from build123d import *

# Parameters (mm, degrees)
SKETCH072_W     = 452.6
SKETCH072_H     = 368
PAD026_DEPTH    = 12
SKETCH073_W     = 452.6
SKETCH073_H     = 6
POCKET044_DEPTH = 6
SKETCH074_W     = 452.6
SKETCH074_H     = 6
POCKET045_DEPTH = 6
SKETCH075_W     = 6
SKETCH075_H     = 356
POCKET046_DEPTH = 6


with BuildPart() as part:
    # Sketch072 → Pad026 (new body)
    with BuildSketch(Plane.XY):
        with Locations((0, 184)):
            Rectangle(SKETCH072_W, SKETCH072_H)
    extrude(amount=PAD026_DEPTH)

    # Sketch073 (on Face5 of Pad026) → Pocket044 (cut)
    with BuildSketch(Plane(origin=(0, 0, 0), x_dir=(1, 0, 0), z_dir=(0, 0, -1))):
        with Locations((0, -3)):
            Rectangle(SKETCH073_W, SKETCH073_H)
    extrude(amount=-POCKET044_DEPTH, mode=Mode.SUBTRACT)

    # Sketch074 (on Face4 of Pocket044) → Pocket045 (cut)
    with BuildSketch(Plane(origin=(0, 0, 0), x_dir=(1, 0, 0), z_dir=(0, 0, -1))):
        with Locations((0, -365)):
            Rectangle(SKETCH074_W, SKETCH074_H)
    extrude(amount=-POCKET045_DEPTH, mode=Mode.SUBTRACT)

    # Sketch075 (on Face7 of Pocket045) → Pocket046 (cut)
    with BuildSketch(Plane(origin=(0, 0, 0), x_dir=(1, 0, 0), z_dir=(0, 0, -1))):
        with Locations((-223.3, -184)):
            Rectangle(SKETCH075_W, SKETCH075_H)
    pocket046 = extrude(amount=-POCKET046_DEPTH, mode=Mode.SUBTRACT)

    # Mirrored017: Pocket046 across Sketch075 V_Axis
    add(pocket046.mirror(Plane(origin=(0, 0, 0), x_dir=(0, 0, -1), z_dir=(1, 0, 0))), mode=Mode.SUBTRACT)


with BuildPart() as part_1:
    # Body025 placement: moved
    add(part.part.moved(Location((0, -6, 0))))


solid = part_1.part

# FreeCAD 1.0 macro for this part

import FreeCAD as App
import Part
import Sketcher
Q = App.Units.Quantity

doc = App.newDocument("Part")
body = doc.addObject("PartDesign::Body", "Body")

# Sketch on XY plane
sketch1 = doc.addObject("Sketcher::SketchObject", "Sketch")
body.addObject(sketch1)
sketch1.AttachmentSupport = (doc.XY_Plane, [""])
sketch1.MapMode = "FlatFace"
sketch1.addGeometry([
    Part.LineSegment(App.Vector(-226, 368, 0), App.Vector(-226, 0, 0)),
    Part.LineSegment(App.Vector(-226, 0, 0), App.Vector(226, 0, 0)),
    Part.LineSegment(App.Vector(226, 0, 0), App.Vector(226, 368, 0)),
    Part.LineSegment(App.Vector(226, 368, 0), App.Vector(-226, 368, 0)),
], False)
sketch1.addConstraint([
    Sketcher.Constraint("Coincident", 0, 2, 1, 1),
    Sketcher.Constraint("Coincident", 1, 2, 2, 1),
    Sketcher.Constraint("Coincident", 2, 2, 3, 1),
    Sketcher.Constraint("Coincident", 3, 2, 0, 1),
    Sketcher.Constraint("Vertical", 0),
    Sketcher.Constraint("Horizontal", 1),
    Sketcher.Constraint("Vertical", 2),
    Sketcher.Constraint("Horizontal", 3),
    Sketcher.Constraint("Symmetric", 0, 2, 1, 2, -1, 1),
    Sketcher.Constraint("DistanceY", 0, 2, 0, 1, Q("368 mm")),
    Sketcher.Constraint("DistanceX", 1, 1, 1, 2, Q("452.6 mm")),
])
pad1 = doc.addObject("PartDesign::Pad", "Pad")
body.addObject(pad1)
pad1.Profile = sketch1
pad1.Length = 12

# Sketch on XY plane
sketch2 = doc.addObject("Sketcher::SketchObject", "Sketch001")
body.addObject(sketch2)
sketch2.AttachmentSupport = (doc.XY_Plane, [""])
sketch2.MapMode = "FlatFace"
sketch2.addGeometry([
    Part.LineSegment(App.Vector(-226, 0, 0), App.Vector(-226, 6, 0)),
    Part.LineSegment(App.Vector(-226, 6, 0), App.Vector(226, 6, 0)),
    Part.LineSegment(App.Vector(226, 6, 0), App.Vector(226, 0, 0)),
    Part.LineSegment(App.Vector(226, 0, 0), App.Vector(-226, 0, 0)),
], False)
sketch2.addConstraint([
    Sketcher.Constraint("Coincident", 0, 2, 1, 1),
    Sketcher.Constraint("Coincident", 1, 2, 2, 1),
    Sketcher.Constraint("Coincident", 2, 2, 3, 1),
    Sketcher.Constraint("Coincident", 3, 2, 0, 1),
    Sketcher.Constraint("Vertical", 0),
    Sketcher.Constraint("Horizontal", 1),
    Sketcher.Constraint("Vertical", 2),
    Sketcher.Constraint("Horizontal", 3),
    Sketcher.Constraint("Symmetric", 2, 2, 3, 2, -1, 1),
    Sketcher.Constraint("DistanceY", 0, 1, 0, 2, Q("6 mm")),
    Sketcher.Constraint("DistanceX", 1, 1, 1, 2, Q("452.6 mm")),
])
pocket1 = doc.addObject("PartDesign::Pocket", "Pocket")
body.addObject(pocket1)
pocket1.Profile = sketch2
pocket1.Length = 6
pocket1.Reversed = True

# Sketch on XY plane
sketch3 = doc.addObject("Sketcher::SketchObject", "Sketch002")
body.addObject(sketch3)
sketch3.AttachmentSupport = (doc.XY_Plane, [""])
sketch3.MapMode = "FlatFace"
sketch3.addGeometry([
    Part.LineSegment(App.Vector(-226, 362, 0), App.Vector(-226, 368, 0)),
    Part.LineSegment(App.Vector(-226, 368, 0), App.Vector(226, 368, 0)),
    Part.LineSegment(App.Vector(226, 368, 0), App.Vector(226, 362, 0)),
    Part.LineSegment(App.Vector(226, 362, 0), App.Vector(-226, 362, 0)),
], False)
sketch3.addConstraint([
    Sketcher.Constraint("Coincident", 0, 2, 1, 1),
    Sketcher.Constraint("Coincident", 1, 2, 2, 1),
    Sketcher.Constraint("Coincident", 2, 2, 3, 1),
    Sketcher.Constraint("Coincident", 3, 2, 0, 1),
    Sketcher.Constraint("Vertical", 0),
    Sketcher.Constraint("Horizontal", 1),
    Sketcher.Constraint("Vertical", 2),
    Sketcher.Constraint("Horizontal", 3),
    Sketcher.Constraint("DistanceY", 0, 1, 0, 2, Q("6 mm")),
    Sketcher.Constraint("DistanceX", 1, 1, 1, 2, Q("452.6 mm")),
    Sketcher.Constraint("DistanceY", -1, 1, 0, 2, Q("368 mm")),
    Sketcher.Constraint("DistanceX", 0, 2, -1, 1, Q("226.3 mm")),
])
pocket2 = doc.addObject("PartDesign::Pocket", "Pocket001")
body.addObject(pocket2)
pocket2.Profile = sketch3
pocket2.Length = 6
pocket2.Reversed = True

# Sketch on XY plane
sketch4 = doc.addObject("Sketcher::SketchObject", "Sketch003")
body.addObject(sketch4)
sketch4.AttachmentSupport = (doc.XY_Plane, [""])
sketch4.MapMode = "FlatFace"
sketch4.addGeometry([
    Part.LineSegment(App.Vector(-226, 6, 0), App.Vector(-226, 362, 0)),
    Part.LineSegment(App.Vector(-226, 362, 0), App.Vector(-220, 362, 0)),
    Part.LineSegment(App.Vector(-220, 362, 0), App.Vector(-220, 6, 0)),
    Part.LineSegment(App.Vector(-220, 6, 0), App.Vector(-226, 6, 0)),
], False)
sketch4.addConstraint([
    Sketcher.Constraint("Coincident", 0, 2, 1, 1),
    Sketcher.Constraint("Coincident", 1, 2, 2, 1),
    Sketcher.Constraint("Coincident", 2, 2, 3, 1),
    Sketcher.Constraint("Coincident", 3, 2, 0, 1),
    Sketcher.Constraint("Vertical", 0),
    Sketcher.Constraint("Horizontal", 1),
    Sketcher.Constraint("Vertical", 2),
    Sketcher.Constraint("Horizontal", 3),
    Sketcher.Constraint("DistanceX", 1, 1, 1, 2, Q("6 mm")),
    Sketcher.Constraint("DistanceY", 0, 1, 0, 2, Q("356 mm")),
    Sketcher.Constraint("DistanceY", -1, 1, 0, 2, Q("362 mm")),
    Sketcher.Constraint("DistanceX", 0, 2, -1, 1, Q("226.3 mm")),
])
pocket3 = doc.addObject("PartDesign::Pocket", "Pocket002")
body.addObject(pocket3)
pocket3.Profile = sketch4
pocket3.Length = 6
pocket3.Reversed = True
doc.recompute()

mirrored = doc.addObject("PartDesign::Mirrored", "Mirrored")
body.addObject(mirrored)
mirrored.Originals = [pocket3]
mirrored.MirrorPlane = (doc.YZ_Plane, [""])
body.Tip = mirrored
body2 = doc.addObject("PartDesign::Body", "Body001")
doc.recompute()

body.Placement = App.Placement(App.Vector(0, -6, 0), App.Rotation(App.Vector(0, 0, 1), 0))
boolean = doc.addObject("PartDesign::Boolean", "Boolean")
body2.addObject(boolean)
boolean.Type = "Fuse"
boolean.addObjects([body])

doc.recompute()
